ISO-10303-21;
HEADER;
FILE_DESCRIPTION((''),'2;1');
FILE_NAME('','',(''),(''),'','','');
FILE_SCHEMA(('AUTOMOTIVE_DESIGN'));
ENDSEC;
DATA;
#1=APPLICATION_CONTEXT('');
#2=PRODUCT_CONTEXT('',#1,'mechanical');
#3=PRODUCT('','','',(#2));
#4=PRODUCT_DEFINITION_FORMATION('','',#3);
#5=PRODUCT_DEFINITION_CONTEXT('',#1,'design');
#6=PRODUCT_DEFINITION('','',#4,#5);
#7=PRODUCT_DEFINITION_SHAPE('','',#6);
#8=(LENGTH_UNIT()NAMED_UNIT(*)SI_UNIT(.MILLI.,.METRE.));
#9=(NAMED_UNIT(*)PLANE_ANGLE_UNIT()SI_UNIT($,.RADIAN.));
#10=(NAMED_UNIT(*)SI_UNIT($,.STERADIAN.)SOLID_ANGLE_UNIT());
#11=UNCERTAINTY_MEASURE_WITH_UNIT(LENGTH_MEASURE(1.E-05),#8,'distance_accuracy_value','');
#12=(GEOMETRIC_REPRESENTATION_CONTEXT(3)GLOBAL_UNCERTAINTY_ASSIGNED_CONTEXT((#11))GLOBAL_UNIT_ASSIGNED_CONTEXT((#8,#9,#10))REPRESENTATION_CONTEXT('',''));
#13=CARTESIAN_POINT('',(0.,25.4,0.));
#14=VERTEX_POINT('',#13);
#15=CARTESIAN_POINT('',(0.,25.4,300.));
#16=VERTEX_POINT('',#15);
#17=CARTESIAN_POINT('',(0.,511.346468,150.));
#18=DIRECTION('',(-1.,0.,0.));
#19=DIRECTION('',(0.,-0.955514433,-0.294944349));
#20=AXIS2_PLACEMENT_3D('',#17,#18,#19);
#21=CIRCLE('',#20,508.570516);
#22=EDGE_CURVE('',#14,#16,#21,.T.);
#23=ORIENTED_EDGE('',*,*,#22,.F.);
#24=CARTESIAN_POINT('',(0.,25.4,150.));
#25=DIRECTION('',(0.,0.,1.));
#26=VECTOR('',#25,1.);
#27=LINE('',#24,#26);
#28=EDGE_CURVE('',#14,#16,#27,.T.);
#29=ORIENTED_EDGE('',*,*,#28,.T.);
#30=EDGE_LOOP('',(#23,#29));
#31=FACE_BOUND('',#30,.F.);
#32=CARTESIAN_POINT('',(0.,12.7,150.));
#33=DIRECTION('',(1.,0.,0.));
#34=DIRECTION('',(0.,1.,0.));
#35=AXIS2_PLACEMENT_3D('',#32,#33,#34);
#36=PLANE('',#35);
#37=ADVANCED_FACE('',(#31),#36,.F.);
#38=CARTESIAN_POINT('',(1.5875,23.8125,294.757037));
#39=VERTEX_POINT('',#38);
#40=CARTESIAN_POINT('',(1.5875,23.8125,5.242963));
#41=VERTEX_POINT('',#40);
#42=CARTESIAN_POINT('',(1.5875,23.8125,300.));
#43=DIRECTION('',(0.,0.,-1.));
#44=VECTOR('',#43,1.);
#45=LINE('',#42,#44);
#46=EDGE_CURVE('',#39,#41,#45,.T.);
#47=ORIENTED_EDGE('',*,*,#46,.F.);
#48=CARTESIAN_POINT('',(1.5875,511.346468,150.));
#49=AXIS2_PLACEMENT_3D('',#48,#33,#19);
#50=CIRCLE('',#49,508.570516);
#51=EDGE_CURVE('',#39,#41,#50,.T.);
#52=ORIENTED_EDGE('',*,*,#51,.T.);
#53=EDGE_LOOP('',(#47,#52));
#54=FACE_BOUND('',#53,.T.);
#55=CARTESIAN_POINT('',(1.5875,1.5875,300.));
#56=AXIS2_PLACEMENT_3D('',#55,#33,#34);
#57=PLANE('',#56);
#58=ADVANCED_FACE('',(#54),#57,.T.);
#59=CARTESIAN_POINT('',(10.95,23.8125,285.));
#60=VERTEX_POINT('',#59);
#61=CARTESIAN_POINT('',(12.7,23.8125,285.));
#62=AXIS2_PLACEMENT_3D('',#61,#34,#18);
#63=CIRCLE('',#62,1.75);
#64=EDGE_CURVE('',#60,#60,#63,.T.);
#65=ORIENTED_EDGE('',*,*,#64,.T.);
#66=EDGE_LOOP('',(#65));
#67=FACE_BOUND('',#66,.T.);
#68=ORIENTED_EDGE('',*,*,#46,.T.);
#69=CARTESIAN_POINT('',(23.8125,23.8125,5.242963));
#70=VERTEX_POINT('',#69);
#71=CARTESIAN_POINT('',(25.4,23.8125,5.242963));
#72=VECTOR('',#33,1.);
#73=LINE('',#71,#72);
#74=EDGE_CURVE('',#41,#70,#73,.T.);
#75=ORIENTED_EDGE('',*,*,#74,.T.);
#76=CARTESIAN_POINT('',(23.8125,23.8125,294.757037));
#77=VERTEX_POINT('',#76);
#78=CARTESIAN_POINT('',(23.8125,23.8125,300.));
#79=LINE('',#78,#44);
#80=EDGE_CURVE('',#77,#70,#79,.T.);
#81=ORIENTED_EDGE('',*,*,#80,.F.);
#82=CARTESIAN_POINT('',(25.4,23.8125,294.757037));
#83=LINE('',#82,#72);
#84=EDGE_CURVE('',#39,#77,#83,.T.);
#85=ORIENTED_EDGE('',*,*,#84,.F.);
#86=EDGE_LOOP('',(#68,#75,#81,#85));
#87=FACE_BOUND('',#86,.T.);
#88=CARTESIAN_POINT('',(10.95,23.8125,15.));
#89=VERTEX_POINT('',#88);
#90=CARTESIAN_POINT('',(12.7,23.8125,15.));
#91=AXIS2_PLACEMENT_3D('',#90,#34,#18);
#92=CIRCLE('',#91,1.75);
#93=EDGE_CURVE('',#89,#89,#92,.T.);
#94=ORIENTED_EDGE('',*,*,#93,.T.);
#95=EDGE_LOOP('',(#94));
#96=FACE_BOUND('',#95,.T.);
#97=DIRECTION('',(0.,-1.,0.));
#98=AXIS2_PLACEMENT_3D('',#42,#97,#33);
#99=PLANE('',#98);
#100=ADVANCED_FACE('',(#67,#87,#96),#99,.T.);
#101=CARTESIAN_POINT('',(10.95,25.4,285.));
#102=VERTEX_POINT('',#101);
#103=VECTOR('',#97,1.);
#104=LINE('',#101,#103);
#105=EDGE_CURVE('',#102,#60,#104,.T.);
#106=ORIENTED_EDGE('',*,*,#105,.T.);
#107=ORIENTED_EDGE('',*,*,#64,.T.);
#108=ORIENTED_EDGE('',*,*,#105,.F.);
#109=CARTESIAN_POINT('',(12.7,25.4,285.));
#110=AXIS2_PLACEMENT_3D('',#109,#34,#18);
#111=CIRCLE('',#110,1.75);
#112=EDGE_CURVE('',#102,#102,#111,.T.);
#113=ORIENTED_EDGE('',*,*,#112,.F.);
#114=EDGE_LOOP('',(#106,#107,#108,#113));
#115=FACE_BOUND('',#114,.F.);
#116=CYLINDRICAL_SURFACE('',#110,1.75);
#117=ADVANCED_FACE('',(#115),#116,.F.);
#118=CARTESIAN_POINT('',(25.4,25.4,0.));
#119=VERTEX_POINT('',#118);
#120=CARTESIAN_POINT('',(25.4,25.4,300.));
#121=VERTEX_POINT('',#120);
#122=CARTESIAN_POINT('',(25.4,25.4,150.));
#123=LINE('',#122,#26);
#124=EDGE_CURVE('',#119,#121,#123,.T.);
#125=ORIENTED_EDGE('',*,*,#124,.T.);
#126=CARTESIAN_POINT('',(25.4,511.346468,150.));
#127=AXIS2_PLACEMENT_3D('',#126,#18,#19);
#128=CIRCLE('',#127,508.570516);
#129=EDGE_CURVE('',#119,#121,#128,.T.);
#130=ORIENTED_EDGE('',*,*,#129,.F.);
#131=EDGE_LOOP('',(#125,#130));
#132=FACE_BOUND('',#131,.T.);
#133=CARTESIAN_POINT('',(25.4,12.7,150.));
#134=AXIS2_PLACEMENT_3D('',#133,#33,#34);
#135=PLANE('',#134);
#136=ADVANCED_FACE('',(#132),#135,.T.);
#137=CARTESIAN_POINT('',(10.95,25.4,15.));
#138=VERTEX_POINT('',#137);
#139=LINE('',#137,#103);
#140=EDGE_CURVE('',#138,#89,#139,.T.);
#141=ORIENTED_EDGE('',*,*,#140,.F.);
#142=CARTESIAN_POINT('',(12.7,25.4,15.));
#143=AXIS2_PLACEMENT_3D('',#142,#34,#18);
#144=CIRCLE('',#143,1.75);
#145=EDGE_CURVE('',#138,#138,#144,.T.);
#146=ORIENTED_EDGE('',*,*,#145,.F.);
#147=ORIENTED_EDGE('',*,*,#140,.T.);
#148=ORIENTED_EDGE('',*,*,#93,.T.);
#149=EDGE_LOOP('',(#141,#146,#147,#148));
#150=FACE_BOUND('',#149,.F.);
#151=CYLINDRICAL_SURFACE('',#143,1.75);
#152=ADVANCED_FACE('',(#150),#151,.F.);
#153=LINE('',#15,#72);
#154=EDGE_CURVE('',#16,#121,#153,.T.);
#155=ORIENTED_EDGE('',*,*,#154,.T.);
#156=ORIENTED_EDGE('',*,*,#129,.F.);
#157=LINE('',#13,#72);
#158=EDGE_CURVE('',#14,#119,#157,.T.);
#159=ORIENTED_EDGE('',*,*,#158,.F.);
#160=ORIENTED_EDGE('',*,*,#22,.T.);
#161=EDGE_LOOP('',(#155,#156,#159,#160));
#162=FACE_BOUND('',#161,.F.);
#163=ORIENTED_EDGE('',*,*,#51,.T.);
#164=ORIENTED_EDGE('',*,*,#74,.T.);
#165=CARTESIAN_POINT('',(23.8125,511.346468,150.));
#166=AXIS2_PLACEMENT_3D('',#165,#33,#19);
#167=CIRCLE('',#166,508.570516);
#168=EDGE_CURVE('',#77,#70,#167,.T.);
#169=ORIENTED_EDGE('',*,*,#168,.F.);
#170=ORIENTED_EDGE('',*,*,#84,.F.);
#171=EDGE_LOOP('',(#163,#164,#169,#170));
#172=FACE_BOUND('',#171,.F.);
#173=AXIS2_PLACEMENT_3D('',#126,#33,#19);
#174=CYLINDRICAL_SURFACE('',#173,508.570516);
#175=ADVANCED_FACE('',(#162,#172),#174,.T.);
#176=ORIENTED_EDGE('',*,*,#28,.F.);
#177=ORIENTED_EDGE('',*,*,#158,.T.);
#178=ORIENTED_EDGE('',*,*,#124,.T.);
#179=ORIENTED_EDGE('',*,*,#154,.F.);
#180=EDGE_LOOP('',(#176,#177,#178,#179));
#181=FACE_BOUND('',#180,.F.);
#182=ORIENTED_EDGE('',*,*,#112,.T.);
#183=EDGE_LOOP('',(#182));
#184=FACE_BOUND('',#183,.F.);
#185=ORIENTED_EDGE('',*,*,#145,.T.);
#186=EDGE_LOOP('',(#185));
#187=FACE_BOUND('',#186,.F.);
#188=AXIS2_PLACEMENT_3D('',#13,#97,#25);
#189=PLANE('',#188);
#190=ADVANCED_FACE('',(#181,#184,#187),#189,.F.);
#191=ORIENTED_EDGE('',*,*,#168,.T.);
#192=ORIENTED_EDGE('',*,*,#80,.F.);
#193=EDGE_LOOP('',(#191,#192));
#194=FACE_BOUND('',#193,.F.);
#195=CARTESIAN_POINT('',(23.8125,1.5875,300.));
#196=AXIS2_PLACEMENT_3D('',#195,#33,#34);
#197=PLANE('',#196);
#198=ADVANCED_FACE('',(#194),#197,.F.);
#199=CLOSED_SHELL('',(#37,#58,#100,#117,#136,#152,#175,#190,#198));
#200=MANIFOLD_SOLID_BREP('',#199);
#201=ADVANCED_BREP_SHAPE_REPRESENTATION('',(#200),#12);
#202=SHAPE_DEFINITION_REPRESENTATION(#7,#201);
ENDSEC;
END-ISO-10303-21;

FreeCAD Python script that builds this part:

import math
import FreeCAD as App
import Part
import Sketcher
from FreeCAD import Vector

doc = App.newDocument("Part")
body = doc.addObject("PartDesign::Body", "Body")

sketch1 = body.newObject("Sketcher::SketchObject", "Sketch")
sketch1.AttachmentSupport = (doc.getObject("YZ_Plane"), [""])
sketch1.MapMode = "FlatFace"
sketch1.addGeometry([
    Part.LineSegment(Vector(0, 300, 0), Vector(0, 0, 0)),
    Part.LineSegment(Vector(0, 0, 0), Vector(25, 0, 0)),
    Part.LineSegment(Vector(25, 0, 0), Vector(25, 300, 0)),
    Part.LineSegment(Vector(25, 300, 0), Vector(0, 300, 0)),
], False)
sketch1.addConstraint([
    Sketcher.Constraint("Coincident", 0, 2, 1, 1),
    Sketcher.Constraint("Coincident", 1, 2, 2, 1),
    Sketcher.Constraint("Coincident", 2, 2, 3, 1),
    Sketcher.Constraint("Coincident", 3, 2, 0, 1),
    Sketcher.Constraint("Vertical", 0),
    Sketcher.Constraint("Horizontal", 1),
    Sketcher.Constraint("Vertical", 2),
    Sketcher.Constraint("Horizontal", 3),
    Sketcher.Constraint("Coincident", 0, 2, -1, 1),
    Sketcher.Constraint("DistanceY", 0, 2, 0, 1, 300.0),
    Sketcher.Constraint("DistanceX", 1, 1, 1, 2, 25.4),
])
pad1 = body.newObject("PartDesign::Pad", "Pad")
pad1.Profile = sketch1
pad1.Length = 25.4

sketch2 = body.newObject("Sketcher::SketchObject", "Sketch001")
sketch2.AttachmentSupport = (doc.getObject("XY_Plane"), [""])
sketch2.MapMode = "FlatFace"
sketch2.AttachmentOffset = App.Placement(Vector(0, 0, 300), App.Rotation())
sketch2.addGeometry([
    Part.LineSegment(Vector(2, 24, 0), Vector(2, 2, 0)),
    Part.LineSegment(Vector(2, 2, 0), Vector(24, 2, 0)),
    Part.LineSegment(Vector(24, 2, 0), Vector(24, 24, 0)),
    Part.LineSegment(Vector(24, 24, 0), Vector(2, 24, 0)),
], False)
sketch2.addConstraint([
    Sketcher.Constraint("Coincident", 0, 2, 1, 1),
    Sketcher.Constraint("Coincident", 1, 2, 2, 1),
    Sketcher.Constraint("Coincident", 2, 2, 3, 1),
    Sketcher.Constraint("Coincident", 3, 2, 0, 1),
    Sketcher.Constraint("Vertical", 0),
    Sketcher.Constraint("Horizontal", 1),
    Sketcher.Constraint("Vertical", 2),
    Sketcher.Constraint("Horizontal", 3),
    Sketcher.Constraint("Equal", 3, 0),
    Sketcher.Constraint("DistanceX", 1, 1, 1, 2, 22.225),
    Sketcher.Constraint("DistanceX", -1, 1, 0, 2, 1.5875),
    Sketcher.Constraint("DistanceY", -1, 1, 0, 2, 1.5875),
])
pocket1 = body.newObject("PartDesign::Pocket", "Pocket")
pocket1.Profile = sketch2
pocket1.Length = 300

sketch3 = body.newObject("Sketcher::SketchObject", "Sketch002")
sketch3.AttachmentSupport = (doc.getObject("YZ_Plane"), [""])
sketch3.MapMode = "FlatFace"
sketch3.AttachmentOffset = App.Placement(Vector(0, 0, 25.4), App.Rotation())
sketch3.addGeometry([
    Part.ArcOfCircle(Part.Circle(Vector(511, 150, 0), Vector(0, 0, 1), 509), math.radians(163), math.radians(197)),
    Part.LineSegment(Vector(25, 300, 0), Vector(0, 300, 0)),
    Part.LineSegment(Vector(0, 300, 0), Vector(0, 0, 0)),
    Part.LineSegment(Vector(0, 0, 0), Vector(25, 0, 0)),
], False)
sketch3.addConstraint([
    Sketcher.Constraint("Coincident", 0, 1, 1, 1),
    Sketcher.Constraint("Coincident", 1, 2, 2, 1),
    Sketcher.Constraint("Coincident", 2, 2, 3, 1),
    Sketcher.Constraint("Coincident", 3, 2, 0, 2),
    Sketcher.Constraint("Horizontal", 1),
    Sketcher.Constraint("Vertical", 2),
    Sketcher.Constraint("Horizontal", 3),
    Sketcher.Constraint("Coincident", 2, 2, -1, 1),
    Sketcher.Constraint("Vertical", 0, 1, 3, 2),
    Sketcher.Constraint("DistanceY", 2, 2, 2, 1, 300.0),
    Sketcher.Constraint("DistanceX", 1, 2, 1, 1, 25.4),
    Sketcher.Constraint("Radius", 0, 508.570516),
])
pocket2 = body.newObject("PartDesign::Pocket", "Pocket001")
pocket2.Profile = sketch3
pocket2.Length = 25.4

sketch4 = body.newObject("Sketcher::SketchObject", "Sketch003")
sketch4.AttachmentSupport = (doc.getObject("XZ_Plane"), [""])
sketch4.MapMode = "FlatFace"
sketch4.AttachmentOffset = App.Placement(Vector(0, 0, -25.4), App.Rotation())
sketch4.addGeometry([
    Part.Circle(Vector(12.7, 285, 0), Vector(0, 0, 1), 1.8),
    Part.Circle(Vector(12.7, 15, 0), Vector(0, 0, 1), 1.8),
], False)
sketch4.addConstraint([
    Sketcher.Constraint("Equal", 0, 1),
    Sketcher.Constraint("Vertical", 0, 3, 1, 3),
    Sketcher.Constraint("Diameter", 0, 3.5),
    Sketcher.Constraint("DistanceY", -1, 1, 0, 3, 285.0),
    Sketcher.Constraint("DistanceY", -1, 1, 1, 3, 15.0),
    Sketcher.Constraint("DistanceX", -1, 1, 0, 3, 12.7),
])
pocket3 = body.newObject("PartDesign::Pocket", "Pocket002")
pocket3.Profile = sketch4
pocket3.Length = 25
pocket3.Reversed = True

doc.recompute()
